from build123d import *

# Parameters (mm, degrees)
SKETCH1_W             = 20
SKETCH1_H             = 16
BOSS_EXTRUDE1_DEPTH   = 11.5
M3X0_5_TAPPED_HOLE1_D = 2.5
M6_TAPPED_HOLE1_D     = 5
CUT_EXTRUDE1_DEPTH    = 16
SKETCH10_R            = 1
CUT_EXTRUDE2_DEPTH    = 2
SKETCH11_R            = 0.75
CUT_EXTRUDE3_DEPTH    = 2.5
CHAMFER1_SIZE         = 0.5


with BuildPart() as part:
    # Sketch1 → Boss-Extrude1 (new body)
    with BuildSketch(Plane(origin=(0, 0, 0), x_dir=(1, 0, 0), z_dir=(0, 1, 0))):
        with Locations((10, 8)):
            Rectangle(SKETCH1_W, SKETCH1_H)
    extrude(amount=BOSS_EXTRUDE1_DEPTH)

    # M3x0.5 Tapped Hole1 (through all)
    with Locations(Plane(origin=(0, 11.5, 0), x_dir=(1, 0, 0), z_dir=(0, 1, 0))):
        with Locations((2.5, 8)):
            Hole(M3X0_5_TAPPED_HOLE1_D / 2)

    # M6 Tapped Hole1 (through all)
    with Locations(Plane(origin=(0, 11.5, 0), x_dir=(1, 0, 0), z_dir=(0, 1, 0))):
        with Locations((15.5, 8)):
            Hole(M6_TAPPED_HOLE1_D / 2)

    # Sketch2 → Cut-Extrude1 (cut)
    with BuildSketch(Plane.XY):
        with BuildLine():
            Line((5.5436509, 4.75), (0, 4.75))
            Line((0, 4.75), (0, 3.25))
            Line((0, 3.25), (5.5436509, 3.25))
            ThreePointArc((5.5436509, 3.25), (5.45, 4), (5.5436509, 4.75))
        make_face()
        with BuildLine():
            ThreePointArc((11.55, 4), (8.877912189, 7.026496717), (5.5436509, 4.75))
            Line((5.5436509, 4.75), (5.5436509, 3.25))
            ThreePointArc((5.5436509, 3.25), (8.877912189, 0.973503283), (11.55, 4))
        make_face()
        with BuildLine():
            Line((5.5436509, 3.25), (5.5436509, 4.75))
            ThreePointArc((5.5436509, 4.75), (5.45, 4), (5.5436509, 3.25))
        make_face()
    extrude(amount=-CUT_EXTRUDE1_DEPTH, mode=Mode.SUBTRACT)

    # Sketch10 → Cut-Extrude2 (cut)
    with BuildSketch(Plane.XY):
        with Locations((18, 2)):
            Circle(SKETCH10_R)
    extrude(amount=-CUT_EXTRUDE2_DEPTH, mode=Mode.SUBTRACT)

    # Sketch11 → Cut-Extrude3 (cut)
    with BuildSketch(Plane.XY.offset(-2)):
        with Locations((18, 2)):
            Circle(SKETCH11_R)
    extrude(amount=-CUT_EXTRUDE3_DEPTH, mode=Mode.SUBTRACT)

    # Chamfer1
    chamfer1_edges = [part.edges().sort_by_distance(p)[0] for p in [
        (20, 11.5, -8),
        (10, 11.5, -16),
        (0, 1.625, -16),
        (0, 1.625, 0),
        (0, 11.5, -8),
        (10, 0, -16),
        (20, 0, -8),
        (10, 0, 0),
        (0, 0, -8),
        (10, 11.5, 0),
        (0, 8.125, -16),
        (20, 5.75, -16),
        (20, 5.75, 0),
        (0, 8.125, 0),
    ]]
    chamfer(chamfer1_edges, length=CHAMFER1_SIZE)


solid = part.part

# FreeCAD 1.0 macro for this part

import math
import FreeCAD as App
import Part
import Sketcher

V = App.Vector


def edges_at(feature, points):
    """Names of the edges that pass closest to the given points."""
    edges = feature.Shape.Edges
    near = lambda p: min(range(len(edges)), key=lambda i: edges[i].distToShape(Part.Vertex(*p))[0])
    return sorted({f"Edge{near(p) + 1}" for p in points})


def add_polygon(sketch, points):
    """Adds a closed chain of lines whose ends are joined by coincident constraints."""
    first, n = sketch.GeometryCount, len(points)
    for a, b in zip(points, points[1:] + points[:1]):
        sketch.addGeometry(Part.LineSegment(App.Vector(*a, 0), App.Vector(*b, 0)), False)
    for i in range(n):
        sketch.addConstraint(Sketcher.Constraint("Coincident", first + i, 2, first + (i + 1) % n, 1))

doc = App.newDocument("Part")
body = doc.addObject("PartDesign::Body", "Body")

sketch1 = body.newObject("Sketcher::SketchObject", "Sketch")
sketch1.AttachmentSupport = (doc.getObject("XZ_Plane"), [""])
sketch1.MapMode = "FlatFace"
add_polygon(sketch1, [(0, -16), (0, 0), (20, 0), (20, -16)])
sketch1.addConstraint([
    Sketcher.Constraint("Vertical", 0),
    Sketcher.Constraint("Horizontal", 1),
    Sketcher.Constraint("Vertical", 2),
    Sketcher.Constraint("Horizontal", 3),
    Sketcher.Constraint("Coincident", 0, 2, -1, 1),
    Sketcher.Constraint("DistanceX", 1, 1, 1, 2, 20.0),
    Sketcher.Constraint("DistanceY", 0, 1, 0, 2, 16.0),
])
pad1 = body.newObject("PartDesign::Pad", "Pad")
pad1.Profile = sketch1
pad1.Length = 11.5
pad1.Reversed = True

sketch2 = body.newObject("Sketcher::SketchObject", "Sketch001")
sketch2.AttachmentSupport = (doc.getObject("XZ_Plane"), [""])
sketch2.MapMode = "FlatFace"
sketch2.AttachmentOffset = App.Placement(V(0, 0, -11.5), App.Rotation())
sketch2.addGeometry(Part.Circle(V(2.5, -8, 0), V(0, 0, 1), 1.2), False)
sketch2.addConstraint([
    Sketcher.Constraint("Diameter", 0, 2.5),
    Sketcher.Constraint("DistanceY", 0, 3, -1, 1, 8.0),
    Sketcher.Constraint("DistanceX", -1, 1, 0, 3, 2.5),
])
doc.recompute()
hole = body.newObject("PartDesign::Hole", "Hole")
hole.Profile = sketch2
hole.ThreadType = "None"
hole.Diameter = 2.5
hole.DepthType = "ThroughAll"
hole.Reversed = True

sketch3 = body.newObject("Sketcher::SketchObject", "Sketch002")
sketch3.AttachmentSupport = (doc.getObject("XZ_Plane"), [""])
sketch3.MapMode = "FlatFace"
sketch3.AttachmentOffset = App.Placement(V(0, 0, -11.5), App.Rotation())
sketch3.addGeometry(Part.Circle(V(15.5, -8, 0), V(0, 0, 1), 2.5), False)
sketch3.addConstraint([
    Sketcher.Constraint("Diameter", 0, 5.0),
    Sketcher.Constraint("DistanceY", 0, 3, -1, 1, 8.0),
    Sketcher.Constraint("DistanceX", -1, 1, 0, 3, 15.5),
])
doc.recompute()
hole2 = body.newObject("PartDesign::Hole", "Hole001")
hole2.Profile = sketch3
hole2.ThreadType = "None"
hole2.Diameter = 5
hole2.DepthType = "ThroughAll"
hole2.Reversed = True

sketch4 = body.newObject("Sketcher::SketchObject", "Sketch003")
sketch4.AttachmentSupport = (doc.getObject("XY_Plane"), [""])
sketch4.MapMode = "FlatFace"
sketch4.addGeometry([
    Part.LineSegment(V(0, 4.8, 0), V(0, 3.2, 0)),
    Part.LineSegment(V(0, 3.2, 0), V(5.5, 3.2, 0)),
    Part.ArcOfCircle(Part.Circle(V(8.5, 4, 0), V(0, 0, 1), 3), math.radians(-166), math.radians(0)),
    Part.ArcOfCircle(Part.Circle(V(8.5, 4, 0), V(0, 0, 1), 3), math.radians(0), math.radians(166)),
    Part.LineSegment(V(5.5, 4.8, 0), V(0, 4.8, 0)),
], False)
sketch4.addConstraint([
    Sketcher.Constraint("Coincident", 0, 2, 1, 1),
    Sketcher.Constraint("Coincident", 1, 2, 2, 1),
    Sketcher.Constraint("Tangent", 2, 2, 3, 1),
    Sketcher.Constraint("Coincident", 3, 2, 4, 1),
    Sketcher.Constraint("Coincident", 4, 2, 0, 1),
    Sketcher.Constraint("Vertical", 0),
    Sketcher.Constraint("Horizontal", 1),
    Sketcher.Constraint("Horizontal", 4),
    Sketcher.Constraint("Equal", 2, 3),
    Sketcher.Constraint("PointOnObject", 0, 2, -2),
    Sketcher.Constraint("Horizontal", 3, 3, 2, 2),
    Sketcher.Constraint("Vertical", 1, 2, 3, 2),
    Sketcher.Constraint("Radius", 2, 3.05),
    Sketcher.Constraint("DistanceY", 0, 2, 0, 1, 1.5),
    Sketcher.Constraint("DistanceY", -1, 1, 2, 3, 4.0),
    Sketcher.Constraint("DistanceX", -1, 1, 2, 3, 8.5),
])
pocket1 = body.newObject("PartDesign::Pocket", "Pocket")
pocket1.Profile = sketch4
pocket1.Length = 16

sketch5 = body.newObject("Sketcher::SketchObject", "Sketch004")
sketch5.AttachmentSupport = (doc.getObject("XY_Plane"), [""])
sketch5.MapMode = "FlatFace"
sketch5.addGeometry(Part.Circle(V(18, 2, 0), V(0, 0, 1), 1), False)
sketch5.addConstraint([
    Sketcher.Constraint("Diameter", 0, 2.0),
    Sketcher.Constraint("DistanceX", -1, 1, 0, 3, 18.0),
    Sketcher.Constraint("DistanceY", -1, 1, 0, 3, 2.0),
])
pocket2 = body.newObject("PartDesign::Pocket", "Pocket001")
pocket2.Profile = sketch5
pocket2.Length = 2

sketch6 = body.newObject("Sketcher::SketchObject", "Sketch005")
sketch6.AttachmentSupport = (doc.getObject("XY_Plane"), [""])
sketch6.MapMode = "FlatFace"
sketch6.AttachmentOffset = App.Placement(V(0, 0, -2), App.Rotation())
sketch6.addGeometry(Part.Circle(V(18, 2, 0), V(0, 0, 1), 0.8), False)
sketch6.addConstraint([
    Sketcher.Constraint("Diameter", 0, 1.5),
    Sketcher.Constraint("DistanceX", -1, 1, 0, 3, 18.0),
    Sketcher.Constraint("DistanceY", -1, 1, 0, 3, 2.0),
])
pocket3 = body.newObject("PartDesign::Pocket", "Pocket002")
pocket3.Profile = sketch6
pocket3.Length = 2.5
doc.recompute()

chamfer = body.newObject("PartDesign::Chamfer", "Chamfer")
chamfer.Base = (pocket3, edges_at(pocket3, [
    (20, 11.5, -8),
    (10, 11.5, -16),
    (0, 1.625, -16),
    (0, 1.625, 0),
    (0, 11.5, -8),
    (10, 0, -16),
    (20, 0, -8),
    (10, 0, 0),
    (0, 0, -8),
    (10, 11.5, 0),
    (0, 8.125, -16),
    (20, 5.75, -16),
    (20, 5.75, 0),
    (0, 8.125, 0),
]))
chamfer.Size = 0.5

doc.recompute()
